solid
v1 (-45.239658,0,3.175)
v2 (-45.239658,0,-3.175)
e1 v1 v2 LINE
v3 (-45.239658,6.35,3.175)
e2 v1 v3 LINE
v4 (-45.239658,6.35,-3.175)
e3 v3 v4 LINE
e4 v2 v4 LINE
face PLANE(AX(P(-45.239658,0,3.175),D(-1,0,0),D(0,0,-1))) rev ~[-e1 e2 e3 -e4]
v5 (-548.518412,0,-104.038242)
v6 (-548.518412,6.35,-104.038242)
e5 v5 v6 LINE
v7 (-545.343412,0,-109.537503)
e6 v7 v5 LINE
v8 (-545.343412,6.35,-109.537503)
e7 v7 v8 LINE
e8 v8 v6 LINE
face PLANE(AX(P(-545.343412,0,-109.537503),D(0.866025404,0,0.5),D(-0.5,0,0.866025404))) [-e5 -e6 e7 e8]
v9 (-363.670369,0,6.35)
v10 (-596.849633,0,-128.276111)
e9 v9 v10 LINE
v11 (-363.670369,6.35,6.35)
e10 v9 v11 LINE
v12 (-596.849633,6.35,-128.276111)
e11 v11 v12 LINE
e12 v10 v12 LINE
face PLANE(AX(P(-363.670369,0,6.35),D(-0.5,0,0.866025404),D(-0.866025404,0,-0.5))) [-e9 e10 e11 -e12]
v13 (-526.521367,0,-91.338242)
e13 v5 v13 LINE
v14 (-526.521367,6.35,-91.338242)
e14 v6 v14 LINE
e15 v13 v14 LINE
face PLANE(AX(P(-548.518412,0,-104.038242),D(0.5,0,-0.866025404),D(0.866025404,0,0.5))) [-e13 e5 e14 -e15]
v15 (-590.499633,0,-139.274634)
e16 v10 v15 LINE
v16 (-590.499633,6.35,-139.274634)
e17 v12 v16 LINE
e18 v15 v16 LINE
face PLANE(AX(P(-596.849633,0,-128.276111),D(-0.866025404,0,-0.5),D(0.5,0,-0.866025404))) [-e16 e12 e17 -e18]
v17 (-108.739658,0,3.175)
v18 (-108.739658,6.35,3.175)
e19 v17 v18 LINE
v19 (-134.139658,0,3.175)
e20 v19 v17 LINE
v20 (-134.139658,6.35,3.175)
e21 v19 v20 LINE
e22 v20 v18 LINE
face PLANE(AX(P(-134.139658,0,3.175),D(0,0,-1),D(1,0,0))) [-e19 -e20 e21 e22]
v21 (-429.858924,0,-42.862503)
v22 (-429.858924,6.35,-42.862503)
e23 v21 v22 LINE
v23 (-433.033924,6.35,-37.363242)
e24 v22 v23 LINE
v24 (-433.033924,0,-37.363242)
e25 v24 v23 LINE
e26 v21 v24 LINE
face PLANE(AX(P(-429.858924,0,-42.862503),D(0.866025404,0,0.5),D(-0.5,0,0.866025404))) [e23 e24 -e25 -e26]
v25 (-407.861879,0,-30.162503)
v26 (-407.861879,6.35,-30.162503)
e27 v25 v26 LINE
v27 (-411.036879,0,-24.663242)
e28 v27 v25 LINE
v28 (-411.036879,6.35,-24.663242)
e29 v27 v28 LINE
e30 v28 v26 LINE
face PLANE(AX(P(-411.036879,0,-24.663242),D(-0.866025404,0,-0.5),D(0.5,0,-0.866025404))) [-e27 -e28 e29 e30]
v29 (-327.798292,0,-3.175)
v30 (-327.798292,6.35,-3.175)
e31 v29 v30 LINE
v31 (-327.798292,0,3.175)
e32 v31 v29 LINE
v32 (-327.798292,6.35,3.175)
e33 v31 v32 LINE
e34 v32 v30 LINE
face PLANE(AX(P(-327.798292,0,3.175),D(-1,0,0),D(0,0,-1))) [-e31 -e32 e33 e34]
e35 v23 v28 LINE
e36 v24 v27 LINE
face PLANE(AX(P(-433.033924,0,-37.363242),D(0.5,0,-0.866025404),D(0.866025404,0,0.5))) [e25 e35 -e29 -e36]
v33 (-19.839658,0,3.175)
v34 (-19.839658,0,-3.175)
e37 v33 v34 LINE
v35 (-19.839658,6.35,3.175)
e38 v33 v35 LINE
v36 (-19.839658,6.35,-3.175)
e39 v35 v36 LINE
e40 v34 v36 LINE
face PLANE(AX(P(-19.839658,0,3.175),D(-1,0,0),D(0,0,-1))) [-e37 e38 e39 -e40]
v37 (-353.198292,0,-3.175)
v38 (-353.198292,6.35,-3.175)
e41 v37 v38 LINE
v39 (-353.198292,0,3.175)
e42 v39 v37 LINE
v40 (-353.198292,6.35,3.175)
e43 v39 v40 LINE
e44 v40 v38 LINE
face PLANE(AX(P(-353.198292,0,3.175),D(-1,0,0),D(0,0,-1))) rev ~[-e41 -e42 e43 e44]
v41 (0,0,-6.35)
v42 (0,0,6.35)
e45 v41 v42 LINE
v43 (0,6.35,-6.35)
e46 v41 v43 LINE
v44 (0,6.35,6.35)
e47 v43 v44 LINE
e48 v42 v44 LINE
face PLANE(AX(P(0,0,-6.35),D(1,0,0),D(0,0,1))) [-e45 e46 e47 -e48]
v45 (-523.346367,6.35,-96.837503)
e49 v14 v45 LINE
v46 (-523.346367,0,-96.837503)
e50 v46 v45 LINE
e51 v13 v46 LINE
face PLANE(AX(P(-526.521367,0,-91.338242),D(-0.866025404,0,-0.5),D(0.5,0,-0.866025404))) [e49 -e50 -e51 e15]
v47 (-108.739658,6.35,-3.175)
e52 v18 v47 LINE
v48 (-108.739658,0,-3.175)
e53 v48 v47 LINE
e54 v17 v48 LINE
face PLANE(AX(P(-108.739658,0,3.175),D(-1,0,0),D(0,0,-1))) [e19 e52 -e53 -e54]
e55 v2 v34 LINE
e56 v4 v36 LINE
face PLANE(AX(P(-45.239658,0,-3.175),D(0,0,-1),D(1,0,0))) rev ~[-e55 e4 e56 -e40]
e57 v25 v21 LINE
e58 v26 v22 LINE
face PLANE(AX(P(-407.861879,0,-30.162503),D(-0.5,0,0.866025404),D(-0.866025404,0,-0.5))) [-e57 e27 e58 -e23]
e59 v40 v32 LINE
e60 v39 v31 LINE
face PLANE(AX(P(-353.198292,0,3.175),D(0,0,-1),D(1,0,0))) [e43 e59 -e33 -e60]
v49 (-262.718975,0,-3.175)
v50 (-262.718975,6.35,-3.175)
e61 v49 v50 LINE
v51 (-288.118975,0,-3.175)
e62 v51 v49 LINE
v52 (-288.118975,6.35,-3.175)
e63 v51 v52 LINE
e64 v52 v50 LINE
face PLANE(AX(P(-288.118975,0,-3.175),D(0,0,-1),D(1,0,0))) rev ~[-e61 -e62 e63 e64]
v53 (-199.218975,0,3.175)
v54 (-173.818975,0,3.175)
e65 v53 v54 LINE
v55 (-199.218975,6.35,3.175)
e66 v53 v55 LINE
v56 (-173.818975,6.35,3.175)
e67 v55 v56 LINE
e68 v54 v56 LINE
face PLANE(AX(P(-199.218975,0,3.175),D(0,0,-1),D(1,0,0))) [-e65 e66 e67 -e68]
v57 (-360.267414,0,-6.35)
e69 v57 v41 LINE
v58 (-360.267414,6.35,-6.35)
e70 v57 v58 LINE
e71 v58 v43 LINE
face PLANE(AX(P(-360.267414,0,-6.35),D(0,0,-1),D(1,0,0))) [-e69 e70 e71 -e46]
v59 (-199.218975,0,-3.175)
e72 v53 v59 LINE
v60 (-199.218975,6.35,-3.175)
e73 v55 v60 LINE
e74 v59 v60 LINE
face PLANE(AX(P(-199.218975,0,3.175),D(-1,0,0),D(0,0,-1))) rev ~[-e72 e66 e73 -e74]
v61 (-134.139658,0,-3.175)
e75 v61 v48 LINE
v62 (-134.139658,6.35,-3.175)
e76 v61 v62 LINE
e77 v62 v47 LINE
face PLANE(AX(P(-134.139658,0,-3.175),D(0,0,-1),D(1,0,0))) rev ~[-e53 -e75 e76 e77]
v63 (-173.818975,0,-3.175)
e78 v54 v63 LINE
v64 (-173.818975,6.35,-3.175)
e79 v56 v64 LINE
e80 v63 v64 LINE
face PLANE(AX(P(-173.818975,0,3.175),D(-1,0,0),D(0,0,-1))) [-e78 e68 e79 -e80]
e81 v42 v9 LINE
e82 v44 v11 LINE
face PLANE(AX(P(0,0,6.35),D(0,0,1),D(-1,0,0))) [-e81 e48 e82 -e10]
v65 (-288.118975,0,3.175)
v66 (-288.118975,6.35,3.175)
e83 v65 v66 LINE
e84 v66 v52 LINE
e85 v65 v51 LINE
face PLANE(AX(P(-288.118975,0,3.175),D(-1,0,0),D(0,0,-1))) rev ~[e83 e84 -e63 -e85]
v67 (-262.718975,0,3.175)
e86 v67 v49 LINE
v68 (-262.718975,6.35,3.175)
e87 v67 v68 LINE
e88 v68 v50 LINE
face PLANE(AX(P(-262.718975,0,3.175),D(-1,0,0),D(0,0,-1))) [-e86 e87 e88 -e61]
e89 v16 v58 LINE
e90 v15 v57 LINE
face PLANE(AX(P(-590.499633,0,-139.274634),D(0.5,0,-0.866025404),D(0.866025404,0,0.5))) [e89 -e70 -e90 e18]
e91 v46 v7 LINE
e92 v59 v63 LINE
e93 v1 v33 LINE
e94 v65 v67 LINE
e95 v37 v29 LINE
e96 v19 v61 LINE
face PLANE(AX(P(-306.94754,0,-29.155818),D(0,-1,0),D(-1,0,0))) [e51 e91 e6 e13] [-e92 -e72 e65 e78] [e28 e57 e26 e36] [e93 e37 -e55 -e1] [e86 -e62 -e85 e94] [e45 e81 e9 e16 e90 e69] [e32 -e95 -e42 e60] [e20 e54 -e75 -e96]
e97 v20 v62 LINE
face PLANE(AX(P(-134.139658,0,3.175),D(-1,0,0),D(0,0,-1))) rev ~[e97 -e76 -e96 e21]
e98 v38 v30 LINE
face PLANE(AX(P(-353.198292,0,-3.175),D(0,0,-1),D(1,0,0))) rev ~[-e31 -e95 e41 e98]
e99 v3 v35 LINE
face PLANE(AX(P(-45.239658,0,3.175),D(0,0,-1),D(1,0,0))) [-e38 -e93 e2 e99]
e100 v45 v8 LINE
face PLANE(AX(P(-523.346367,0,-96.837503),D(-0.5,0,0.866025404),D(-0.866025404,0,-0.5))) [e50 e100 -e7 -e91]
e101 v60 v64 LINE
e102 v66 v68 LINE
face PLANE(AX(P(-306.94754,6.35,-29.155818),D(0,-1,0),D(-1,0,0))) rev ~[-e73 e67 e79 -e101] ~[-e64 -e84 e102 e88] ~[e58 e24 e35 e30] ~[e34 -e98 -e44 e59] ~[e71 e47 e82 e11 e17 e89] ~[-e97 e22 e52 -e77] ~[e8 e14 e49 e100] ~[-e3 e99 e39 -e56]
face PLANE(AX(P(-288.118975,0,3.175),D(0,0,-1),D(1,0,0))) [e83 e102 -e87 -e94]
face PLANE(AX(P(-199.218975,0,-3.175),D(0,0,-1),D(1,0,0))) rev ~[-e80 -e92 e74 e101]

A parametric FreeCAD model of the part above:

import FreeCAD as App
import Part
import Sketcher
from FreeCAD import Vector
Q = App.Units.Quantity


def add_polygon(sketch, points):
    """Adds a closed chain of lines whose ends are joined by coincident constraints."""
    first, n = sketch.GeometryCount, len(points)
    for a, b in zip(points, points[1:] + points[:1]):
        sketch.addGeometry(Part.LineSegment(App.Vector(*a, 0), App.Vector(*b, 0)), False)
    for i in range(n):
        sketch.addConstraint(Sketcher.Constraint("Coincident", first + i, 2, first + (i + 1) % n, 1))

doc = App.newDocument("Part")
body = doc.addObject("PartDesign::Body", "Body")

# Sketch on XZ plane
sketch1 = body.newObject("Sketcher::SketchObject", "Sketch")
sketch1.AttachmentSupport = (doc.getObject("XZ_Plane"), [""])
sketch1.MapMode = "FlatFace"
add_polygon(sketch1, [(-590, -139), (-597, -128), (-364, 6), (0, 6), (0, -6), (-360, -6)])  # lines 0-5
add_polygon(sketch1, [(-45, 3), (-45, -3), (-20, -3), (-20, 3)])  # lines 6-9
add_polygon(sketch1, [(-134, 3), (-134, -3), (-109, -3), (-109, 3)])  # lines 10-13
add_polygon(sketch1, [(-199, 3), (-199, -3), (-174, -3), (-174, 3)])  # lines 14-17
add_polygon(sketch1, [(-288, 3), (-288, -3), (-263, -3), (-263, 3)])  # lines 18-21
add_polygon(sketch1, [(-353, 3), (-353, -3), (-328, -3), (-328, 3)])  # lines 22-25
add_polygon(sketch1, [(-433, -37), (-430, -43), (-408, -30), (-411, -25)])  # lines 26-29
add_polygon(sketch1, [(-549, -104), (-545, -110), (-523, -97), (-527, -91)])  # lines 30-33
sketch1.addConstraint([
    Sketcher.Constraint("Horizontal", 2),
    Sketcher.Constraint("Vertical", 3),
    Sketcher.Constraint("Horizontal", 4),
    Sketcher.Constraint("Vertical", 6),
    Sketcher.Constraint("Horizontal", 7),
    Sketcher.Constraint("Vertical", 8),
    Sketcher.Constraint("Horizontal", 9),
    Sketcher.Constraint("Vertical", 10),
    Sketcher.Constraint("Horizontal", 11),
    Sketcher.Constraint("Vertical", 12),
    Sketcher.Constraint("Horizontal", 13),
    Sketcher.Constraint("Vertical", 14),
    Sketcher.Constraint("Horizontal", 15),
    Sketcher.Constraint("Vertical", 16),
    Sketcher.Constraint("Horizontal", 17),
    Sketcher.Constraint("Vertical", 18),
    Sketcher.Constraint("Horizontal", 19),
    Sketcher.Constraint("Vertical", 20),
    Sketcher.Constraint("Horizontal", 21),
    Sketcher.Constraint("Vertical", 22),
    Sketcher.Constraint("Horizontal", 23),
    Sketcher.Constraint("Vertical", 24),
    Sketcher.Constraint("Horizontal", 25),
    Sketcher.Constraint("Symmetric", 2, 2, 3, 2, -1, 1),
    Sketcher.Constraint("Perpendicular", 0, 1),
    Sketcher.Constraint("Parallel", 1, 5),
    Sketcher.Constraint("Perpendicular", 5, 26),
    Sketcher.Constraint("Perpendicular", 26, 27),
    Sketcher.Constraint("Perpendicular", 27, 28),
    Sketcher.Constraint("Perpendicular", 28, 29),
    Sketcher.Constraint("Perpendicular", 29, 30),
    Sketcher.Constraint("Perpendicular", 30, 31),
    Sketcher.Constraint("Perpendicular", 31, 32),
    Sketcher.Constraint("Perpendicular", 32, 33),
    Sketcher.Constraint("Horizontal", 7, 2, 10, 2),
    Sketcher.Constraint("Horizontal", 9, 2, 12, 2),
    Sketcher.Constraint("Horizontal", 11, 2, 14, 2),
    Sketcher.Constraint("Horizontal", 13, 2, 16, 2),
    Sketcher.Constraint("Horizontal", 15, 2, 18, 2),
    Sketcher.Constraint("Horizontal", 17, 2, 20, 2),
    Sketcher.Constraint("Horizontal", 19, 2, 22, 2),
    Sketcher.Constraint("Horizontal", 21, 2, 24, 2),
    Sketcher.Constraint("Equal", 9, 11),
    Sketcher.Constraint("Equal", 13, 15),
    Sketcher.Constraint("Equal", 17, 19),
    Sketcher.Constraint("Equal", 21, 23),
    Sketcher.Constraint("Equal", 28, 30),
    Sketcher.Constraint("Equal", 29, 31),
    Sketcher.Constraint("DistanceX", 7, 1, 7, 2, Q("1 in")),
    Sketcher.Constraint("Distance", 27, Q("1 in")),
    Sketcher.Constraint("DistanceY", 3, 2, 3, 1, Q("0.5 in")),
    Sketcher.Constraint("Angle", 0, Q("120 deg")),
    Sketcher.Constraint("Distance", 0, Q("0.5 in")),
    Sketcher.Constraint("DistanceY", 6, 2, 6, 1, Q("0.25 in")),
    Sketcher.Constraint("DistanceX", 10, 2, 6, 2, Q("3.5 in")),
    Sketcher.Constraint("DistanceX", 18, 2, 14, 2, Q("3.5 in")),
    Sketcher.Constraint("Distance", 26, Q("0.25 in")),
    Sketcher.Constraint("DistanceY", 6, 2, -1, 1, Q("0.125 in")),
    Sketcher.Constraint("DistanceY", 26, 2, -1, 1, Q("1.6875001 in")),
    Sketcher.Constraint("DistanceY", 30, 2, -1, 1, Q("4.3125001 in")),
    Sketcher.Constraint("DistanceX", 2, 1, 2, 2, 363.670369),
    Sketcher.Constraint("DistanceY", 0, 2, -1, 1, 128.276111),
    Sketcher.Constraint("DistanceX", 6, 2, -1, 1, 45.239658),
    Sketcher.Constraint("DistanceX", 27, 2, -1, 1, 407.861879),
    Sketcher.Constraint("DistanceX", 30, 2, -1, 1, 545.343412),
    Sketcher.Constraint("DistanceX", 4, 2, 18, 2, 72.148439),
    Sketcher.Constraint("DistanceX", 4, 2, 22, 2, 7.069122),
])
pad1 = body.newObject("PartDesign::Pad", "Pad")
pad1.Profile = sketch1
pad1.Length = Q("0.25 in")
pad1.Reversed = True

doc.recompute()
